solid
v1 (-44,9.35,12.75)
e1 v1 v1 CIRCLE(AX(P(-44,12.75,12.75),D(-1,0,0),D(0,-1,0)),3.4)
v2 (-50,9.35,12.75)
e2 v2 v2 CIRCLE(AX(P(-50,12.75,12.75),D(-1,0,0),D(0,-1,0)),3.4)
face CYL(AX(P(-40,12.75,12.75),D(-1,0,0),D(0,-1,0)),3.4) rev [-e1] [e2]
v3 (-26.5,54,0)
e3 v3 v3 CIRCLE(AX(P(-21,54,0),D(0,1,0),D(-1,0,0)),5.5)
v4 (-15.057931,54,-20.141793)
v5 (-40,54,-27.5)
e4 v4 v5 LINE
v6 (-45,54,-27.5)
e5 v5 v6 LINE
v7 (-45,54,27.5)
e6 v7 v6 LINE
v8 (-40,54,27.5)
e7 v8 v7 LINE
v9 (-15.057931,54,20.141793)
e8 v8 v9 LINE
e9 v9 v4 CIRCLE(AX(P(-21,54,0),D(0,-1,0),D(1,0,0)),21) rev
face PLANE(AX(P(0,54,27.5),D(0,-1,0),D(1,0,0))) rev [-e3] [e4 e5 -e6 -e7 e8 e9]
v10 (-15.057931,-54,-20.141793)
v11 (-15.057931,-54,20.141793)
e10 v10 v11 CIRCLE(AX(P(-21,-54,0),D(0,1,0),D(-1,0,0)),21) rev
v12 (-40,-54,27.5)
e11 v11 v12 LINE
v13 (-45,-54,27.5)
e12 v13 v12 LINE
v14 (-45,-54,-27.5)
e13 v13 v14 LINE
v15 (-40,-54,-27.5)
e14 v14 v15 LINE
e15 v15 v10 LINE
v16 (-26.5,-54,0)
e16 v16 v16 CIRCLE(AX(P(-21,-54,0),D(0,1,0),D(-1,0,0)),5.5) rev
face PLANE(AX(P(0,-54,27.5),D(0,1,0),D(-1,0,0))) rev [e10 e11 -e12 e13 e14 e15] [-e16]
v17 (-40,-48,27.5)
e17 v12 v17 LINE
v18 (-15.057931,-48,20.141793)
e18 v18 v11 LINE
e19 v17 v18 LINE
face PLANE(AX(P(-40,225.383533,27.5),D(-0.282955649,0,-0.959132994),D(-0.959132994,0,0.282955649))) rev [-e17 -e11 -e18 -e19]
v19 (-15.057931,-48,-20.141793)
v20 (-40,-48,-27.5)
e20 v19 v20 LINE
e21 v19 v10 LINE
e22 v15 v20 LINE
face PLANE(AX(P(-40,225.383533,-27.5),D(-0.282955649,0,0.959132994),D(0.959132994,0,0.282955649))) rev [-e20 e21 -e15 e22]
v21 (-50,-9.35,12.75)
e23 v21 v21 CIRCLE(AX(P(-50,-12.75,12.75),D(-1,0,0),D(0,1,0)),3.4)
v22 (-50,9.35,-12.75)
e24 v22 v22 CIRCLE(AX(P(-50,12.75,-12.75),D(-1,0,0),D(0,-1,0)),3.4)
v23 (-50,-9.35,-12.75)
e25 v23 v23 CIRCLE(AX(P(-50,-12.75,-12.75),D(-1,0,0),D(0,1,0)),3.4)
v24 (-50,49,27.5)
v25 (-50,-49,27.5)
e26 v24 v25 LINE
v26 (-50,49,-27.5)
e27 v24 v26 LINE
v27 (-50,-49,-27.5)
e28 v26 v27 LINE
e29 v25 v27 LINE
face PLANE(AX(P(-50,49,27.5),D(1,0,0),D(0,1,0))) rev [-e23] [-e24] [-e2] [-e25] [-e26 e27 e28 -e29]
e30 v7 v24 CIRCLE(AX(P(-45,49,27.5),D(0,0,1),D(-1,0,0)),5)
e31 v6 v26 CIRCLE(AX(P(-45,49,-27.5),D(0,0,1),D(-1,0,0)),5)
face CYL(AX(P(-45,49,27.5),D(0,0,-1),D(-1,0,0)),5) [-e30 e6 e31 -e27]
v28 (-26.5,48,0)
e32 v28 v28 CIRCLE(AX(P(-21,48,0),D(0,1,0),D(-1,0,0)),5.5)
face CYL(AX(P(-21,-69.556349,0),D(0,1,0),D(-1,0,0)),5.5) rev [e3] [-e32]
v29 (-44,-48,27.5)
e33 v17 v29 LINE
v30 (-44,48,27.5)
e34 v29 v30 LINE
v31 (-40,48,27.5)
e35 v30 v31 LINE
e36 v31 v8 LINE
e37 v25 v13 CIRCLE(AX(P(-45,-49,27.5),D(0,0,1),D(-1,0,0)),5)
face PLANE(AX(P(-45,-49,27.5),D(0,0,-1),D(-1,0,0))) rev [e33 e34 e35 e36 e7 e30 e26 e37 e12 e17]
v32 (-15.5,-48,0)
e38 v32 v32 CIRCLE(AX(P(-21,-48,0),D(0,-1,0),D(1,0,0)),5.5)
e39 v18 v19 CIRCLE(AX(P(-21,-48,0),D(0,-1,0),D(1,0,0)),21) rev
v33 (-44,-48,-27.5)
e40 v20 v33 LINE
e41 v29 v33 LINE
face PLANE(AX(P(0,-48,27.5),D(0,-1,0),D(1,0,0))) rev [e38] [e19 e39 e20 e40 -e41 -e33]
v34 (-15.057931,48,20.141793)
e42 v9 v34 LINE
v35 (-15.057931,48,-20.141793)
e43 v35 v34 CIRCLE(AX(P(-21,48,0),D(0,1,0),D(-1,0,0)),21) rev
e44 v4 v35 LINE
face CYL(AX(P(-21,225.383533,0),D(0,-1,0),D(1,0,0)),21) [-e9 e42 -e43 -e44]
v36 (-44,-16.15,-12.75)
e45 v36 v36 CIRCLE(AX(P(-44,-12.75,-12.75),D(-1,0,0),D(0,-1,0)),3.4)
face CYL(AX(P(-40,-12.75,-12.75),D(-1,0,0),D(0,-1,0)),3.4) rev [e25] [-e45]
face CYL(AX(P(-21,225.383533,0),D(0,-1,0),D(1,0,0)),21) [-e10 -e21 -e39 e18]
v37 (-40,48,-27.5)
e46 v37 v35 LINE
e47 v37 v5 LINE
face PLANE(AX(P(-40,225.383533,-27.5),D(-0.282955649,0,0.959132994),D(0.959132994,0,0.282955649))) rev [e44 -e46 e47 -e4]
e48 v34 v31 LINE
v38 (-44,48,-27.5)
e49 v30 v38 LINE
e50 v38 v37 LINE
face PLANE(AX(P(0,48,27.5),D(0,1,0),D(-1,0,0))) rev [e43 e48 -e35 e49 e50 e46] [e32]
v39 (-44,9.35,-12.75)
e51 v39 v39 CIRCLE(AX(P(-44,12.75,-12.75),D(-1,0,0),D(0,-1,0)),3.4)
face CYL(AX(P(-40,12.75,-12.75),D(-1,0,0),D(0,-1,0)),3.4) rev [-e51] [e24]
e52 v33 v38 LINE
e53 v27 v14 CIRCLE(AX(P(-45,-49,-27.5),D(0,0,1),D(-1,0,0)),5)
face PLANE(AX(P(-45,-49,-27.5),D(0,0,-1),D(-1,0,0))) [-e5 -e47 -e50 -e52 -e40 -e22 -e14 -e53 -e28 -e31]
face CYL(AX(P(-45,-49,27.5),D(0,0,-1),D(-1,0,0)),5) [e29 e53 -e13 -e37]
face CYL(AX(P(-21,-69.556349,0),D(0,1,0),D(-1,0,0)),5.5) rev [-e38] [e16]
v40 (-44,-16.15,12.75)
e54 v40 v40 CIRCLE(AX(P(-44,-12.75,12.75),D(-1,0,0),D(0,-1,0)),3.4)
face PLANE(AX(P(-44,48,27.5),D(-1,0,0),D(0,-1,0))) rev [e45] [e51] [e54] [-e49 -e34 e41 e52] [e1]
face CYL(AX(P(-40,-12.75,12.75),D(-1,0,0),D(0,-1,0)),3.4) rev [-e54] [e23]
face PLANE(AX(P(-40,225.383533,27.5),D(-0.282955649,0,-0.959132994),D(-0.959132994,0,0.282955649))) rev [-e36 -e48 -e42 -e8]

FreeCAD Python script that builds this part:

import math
import FreeCAD as App
import Part
import Sketcher

V = App.Vector

doc = App.newDocument("Part")
body = doc.addObject("PartDesign::Body", "Body")

# Sketch on XY plane
sketch1 = body.newObject("Sketcher::SketchObject", "Sketch")
sketch1.AttachmentSupport = (doc.getObject("XY_Plane"), [""])
sketch1.MapMode = "FlatFace"
sketch1.addGeometry([
    Part.LineSegment(V(-45, -54, 0), V(0, -54, 0)),  # 0
    Part.LineSegment(V(0, -54, 0), V(0, -48, 0)),  # 1
    Part.LineSegment(V(0, -48, 0), V(-44, -48, 0)),  # 2
    Part.LineSegment(V(-44, -48, 0), V(-44, 48, 0)),  # 3
    Part.LineSegment(V(-44, 48, 0), V(0, 48, 0)),  # 4
    Part.LineSegment(V(0, 48, 0), V(0, 54, 0)),  # 5
    Part.LineSegment(V(0, 54, 0), V(-45, 54, 0)),  # 6
    Part.ArcOfCircle(Part.Circle(V(-45, 49, 0), V(0, 0, 1), 5), math.radians(90), math.radians(180)),  # 7
    Part.LineSegment(V(-50, 49, 0), V(-50, -49, 0)),  # 8
    Part.ArcOfCircle(Part.Circle(V(-45, -49, 0), V(0, 0, 1), 5), math.radians(180), math.radians(270)),  # 9
], False)
sketch1.addConstraint([
    Sketcher.Constraint("Coincident", 0, 2, 1, 1),
    Sketcher.Constraint("Coincident", 1, 2, 2, 1),
    Sketcher.Constraint("Coincident", 2, 2, 3, 1),
    Sketcher.Constraint("Coincident", 3, 2, 4, 1),
    Sketcher.Constraint("Coincident", 4, 2, 5, 1),
    Sketcher.Constraint("Coincident", 5, 2, 6, 1),
    Sketcher.Constraint("Tangent", 6, 2, 7, 1),
    Sketcher.Constraint("Tangent", 7, 2, 8, 1),
    Sketcher.Constraint("Tangent", 8, 2, 9, 1),
    Sketcher.Constraint("Tangent", 9, 2, 0, 1),
    Sketcher.Constraint("Horizontal", 0),
    Sketcher.Constraint("Vertical", 1),
    Sketcher.Constraint("Horizontal", 2),
    Sketcher.Constraint("Vertical", 3),
    Sketcher.Constraint("Horizontal", 4),
    Sketcher.Constraint("Vertical", 5),
    Sketcher.Constraint("Horizontal", 6),
    Sketcher.Constraint("Vertical", 8),
    Sketcher.Constraint("Equal", 7, 9),
    Sketcher.Constraint("Symmetric", 1, 2, 4, 2, -1, 1),
    Sketcher.Constraint("Symmetric", 0, 2, 5, 2, -1),
    Sketcher.Constraint("Radius", 7, 5.0),
    Sketcher.Constraint("DistanceX", 0, 1, 0, 2, 45.0),
    Sketcher.Constraint("DistanceX", 2, 2, 2, 1, 44.0),
    Sketcher.Constraint("DistanceY", 1, 1, 1, 2, 6.0),
    Sketcher.Constraint("DistanceY", 3, 1, 3, 2, 96.0),
])
pad1 = body.newObject("PartDesign::Pad", "Pad")
pad1.Profile = sketch1
pad1.Length = 55
pad1.Midplane = True

# Sketch on XZ plane
sketch2 = body.newObject("Sketcher::SketchObject", "Sketch001")
sketch2.AttachmentSupport = (doc.getObject("XZ_Plane"), [""])
sketch2.MapMode = "FlatFace"
sketch2.AttachmentOffset = App.Placement(V(0, 0, -54), App.Rotation())
sketch2.addGeometry(Part.Circle(V(-21, 0, 0), V(0, 0, 1), 4.2), False)
sketch2.addConstraint([
    Sketcher.Constraint("PointOnObject", 0, 3, -1),
    Sketcher.Constraint("Diameter", 0, 8.5),
    Sketcher.Constraint("DistanceX", 0, 3, -1, 1, 21.0),
])
doc.recompute()
hole = body.newObject("PartDesign::Hole", "Hole")
hole.Profile = sketch2
hole.ThreadType = "None"
hole.Diameter = 8.5
hole.DepthType = "ThroughAll"
hole.Reversed = True

# Sketch on YZ plane
sketch3 = body.newObject("Sketcher::SketchObject", "Sketch002")
sketch3.AttachmentSupport = (doc.getObject("YZ_Plane"), [""])
sketch3.MapMode = "FlatFace"
sketch3.AttachmentOffset = App.Placement(V(0, 0, -50), App.Rotation())
sketch3.addGeometry([
    Part.Circle(V(12.8, 12.8, 0), V(0, 0, 1), 3.4),
    Part.Circle(V(12.8, -12.8, 0), V(0, 0, 1), 3.4),
    Part.Circle(V(-12.8, -12.8, 0), V(0, 0, 1), 3.4),
    Part.Circle(V(-12.8, 12.8, 0), V(0, 0, 1), 3.4),
], False)
sketch3.addConstraint([
    Sketcher.Constraint("Equal", 0, 1),
    Sketcher.Constraint("Equal", 1, 2),
    Sketcher.Constraint("Equal", 2, 3),
    Sketcher.Constraint("Symmetric", 0, 3, 2, 3, -1, 1),
    Sketcher.Constraint("Symmetric", 1, 3, 3, 3, -1, 1),
    Sketcher.Constraint("Symmetric", 1, 3, 2, 3, -2),
    Sketcher.Constraint("Diameter", 0, 6.8),
    Sketcher.Constraint("DistanceY", 1, 3, 0, 3, 25.5),
    Sketcher.Constraint("DistanceX", 2, 3, 1, 3, 25.5),
])
pocket1 = body.newObject("PartDesign::Pocket", "Pocket")
pocket1.Profile = sketch3
pocket1.Length = 10
pocket1.Reversed = True

# Sketch on XZ plane
sketch4 = body.newObject("Sketcher::SketchObject", "Sketch003")
sketch4.AttachmentSupport = (doc.getObject("XZ_Plane"), [""])
sketch4.MapMode = "FlatFace"
sketch4.AttachmentOffset = App.Placement(V(0, 0, -54), App.Rotation())
sketch4.addGeometry(Part.Circle(V(-21, 0, 0), V(0, 0, 1), 5), False)
sketch4.addConstraint([
    Sketcher.Constraint("PointOnObject", 0, 3, -1),
    Sketcher.Constraint("Diameter", 0, 10.0),
    Sketcher.Constraint("DistanceX", 0, 3, -1, 1, 21.0),
])
pocket2 = body.newObject("PartDesign::Pocket", "Pocket001")
pocket2.Profile = sketch4
pocket2.Length = 136
pocket2.Reversed = True

# Sketch on XZ plane
sketch5 = body.newObject("Sketcher::SketchObject", "Sketch004")
sketch5.AttachmentSupport = (doc.getObject("XZ_Plane"), [""])
sketch5.MapMode = "FlatFace"
sketch5.AttachmentOffset = App.Placement(V(0, 0, -54), App.Rotation())
sketch5.addGeometry([
    Part.LineSegment(V(-180, -69, 0), V(-40, -28, 0)),  # 0
    Part.LineSegment(V(-40, -28, 0), V(-15, -20, 0)),  # 1
    Part.ArcOfCircle(Part.Circle(V(-21, 0, 0), V(0, 0, 1), 21), math.radians(-74), math.radians(74)),  # 2
    Part.LineSegment(V(-15, 20, 0), V(-40, 28, 0)),  # 3
    Part.LineSegment(V(-40, 28, 0), V(-180, 69, 0)),  # 4
    Part.LineSegment(V(-180, 69, 0), V(112, 69, 0)),  # 5
    Part.LineSegment(V(112, 69, 0), V(112, -69, 0)),  # 6
    Part.LineSegment(V(112, -69, 0), V(-180, -69, 0)),  # 7
], False)
sketch5.addConstraint([
    Sketcher.Constraint("Coincident", 0, 2, 1, 1),
    Sketcher.Constraint("Tangent", 1, 2, 2, 1),
    Sketcher.Constraint("Tangent", 2, 2, 3, 1),
    Sketcher.Constraint("Coincident", 3, 2, 4, 1),
    Sketcher.Constraint("Coincident", 4, 2, 5, 1),
    Sketcher.Constraint("Coincident", 5, 2, 6, 1),
    Sketcher.Constraint("Coincident", 6, 2, 7, 1),
    Sketcher.Constraint("Coincident", 7, 2, 0, 1),
    Sketcher.Constraint("Horizontal", 5),
    Sketcher.Constraint("Vertical", 6),
    Sketcher.Constraint("Horizontal", 7),
    Sketcher.Constraint("Symmetric", 1, 2, 2, 2, -1),
    Sketcher.Constraint("Symmetric", 4, 2, 7, 2, -1),
    Sketcher.Constraint("Parallel", 0, 1),
    Sketcher.Constraint("Vertical", 0, 2, 3, 2),
    Sketcher.Constraint("Radius", 2, 21.0),
    Sketcher.Constraint("DistanceX", 2, 3, -1, 1, 21.0),
    Sketcher.Constraint("DistanceX", 0, 2, -1, 1, 40.0),
    Sketcher.Constraint("DistanceY", 0, 2, 3, 2, 55.0),
    Sketcher.Constraint("DistanceX", 5, 1, 5, 2, 292.02941),
    Sketcher.Constraint("DistanceY", 6, 2, 6, 1, 137.631371),
])
pocket3 = body.newObject("PartDesign::Pocket", "Pocket002")
pocket3.Profile = sketch5
pocket3.Type = "ThroughAll"
pocket3.Midplane = True

# Sketch on XZ plane
sketch6 = body.newObject("Sketcher::SketchObject", "Sketch005")
sketch6.AttachmentSupport = (doc.getObject("XZ_Plane"), [""])
sketch6.MapMode = "FlatFace"
sketch6.AttachmentOffset = App.Placement(V(0, 0, -54), App.Rotation())
sketch6.addGeometry(Part.Circle(V(-21, 0, 0), V(0, 0, 1), 6), False)
sketch6.addConstraint([
    Sketcher.Constraint("PointOnObject", 0, 3, -1),
    Sketcher.Constraint("Diameter", 0, 11.0),
    Sketcher.Constraint("DistanceX", 0, 3, -1, 1, 21.0),
])
pocket4 = body.newObject("PartDesign::Pocket", "Pocket003")
pocket4.Profile = sketch6
pocket4.Length = 108
pocket4.Reversed = True

doc.recompute()
